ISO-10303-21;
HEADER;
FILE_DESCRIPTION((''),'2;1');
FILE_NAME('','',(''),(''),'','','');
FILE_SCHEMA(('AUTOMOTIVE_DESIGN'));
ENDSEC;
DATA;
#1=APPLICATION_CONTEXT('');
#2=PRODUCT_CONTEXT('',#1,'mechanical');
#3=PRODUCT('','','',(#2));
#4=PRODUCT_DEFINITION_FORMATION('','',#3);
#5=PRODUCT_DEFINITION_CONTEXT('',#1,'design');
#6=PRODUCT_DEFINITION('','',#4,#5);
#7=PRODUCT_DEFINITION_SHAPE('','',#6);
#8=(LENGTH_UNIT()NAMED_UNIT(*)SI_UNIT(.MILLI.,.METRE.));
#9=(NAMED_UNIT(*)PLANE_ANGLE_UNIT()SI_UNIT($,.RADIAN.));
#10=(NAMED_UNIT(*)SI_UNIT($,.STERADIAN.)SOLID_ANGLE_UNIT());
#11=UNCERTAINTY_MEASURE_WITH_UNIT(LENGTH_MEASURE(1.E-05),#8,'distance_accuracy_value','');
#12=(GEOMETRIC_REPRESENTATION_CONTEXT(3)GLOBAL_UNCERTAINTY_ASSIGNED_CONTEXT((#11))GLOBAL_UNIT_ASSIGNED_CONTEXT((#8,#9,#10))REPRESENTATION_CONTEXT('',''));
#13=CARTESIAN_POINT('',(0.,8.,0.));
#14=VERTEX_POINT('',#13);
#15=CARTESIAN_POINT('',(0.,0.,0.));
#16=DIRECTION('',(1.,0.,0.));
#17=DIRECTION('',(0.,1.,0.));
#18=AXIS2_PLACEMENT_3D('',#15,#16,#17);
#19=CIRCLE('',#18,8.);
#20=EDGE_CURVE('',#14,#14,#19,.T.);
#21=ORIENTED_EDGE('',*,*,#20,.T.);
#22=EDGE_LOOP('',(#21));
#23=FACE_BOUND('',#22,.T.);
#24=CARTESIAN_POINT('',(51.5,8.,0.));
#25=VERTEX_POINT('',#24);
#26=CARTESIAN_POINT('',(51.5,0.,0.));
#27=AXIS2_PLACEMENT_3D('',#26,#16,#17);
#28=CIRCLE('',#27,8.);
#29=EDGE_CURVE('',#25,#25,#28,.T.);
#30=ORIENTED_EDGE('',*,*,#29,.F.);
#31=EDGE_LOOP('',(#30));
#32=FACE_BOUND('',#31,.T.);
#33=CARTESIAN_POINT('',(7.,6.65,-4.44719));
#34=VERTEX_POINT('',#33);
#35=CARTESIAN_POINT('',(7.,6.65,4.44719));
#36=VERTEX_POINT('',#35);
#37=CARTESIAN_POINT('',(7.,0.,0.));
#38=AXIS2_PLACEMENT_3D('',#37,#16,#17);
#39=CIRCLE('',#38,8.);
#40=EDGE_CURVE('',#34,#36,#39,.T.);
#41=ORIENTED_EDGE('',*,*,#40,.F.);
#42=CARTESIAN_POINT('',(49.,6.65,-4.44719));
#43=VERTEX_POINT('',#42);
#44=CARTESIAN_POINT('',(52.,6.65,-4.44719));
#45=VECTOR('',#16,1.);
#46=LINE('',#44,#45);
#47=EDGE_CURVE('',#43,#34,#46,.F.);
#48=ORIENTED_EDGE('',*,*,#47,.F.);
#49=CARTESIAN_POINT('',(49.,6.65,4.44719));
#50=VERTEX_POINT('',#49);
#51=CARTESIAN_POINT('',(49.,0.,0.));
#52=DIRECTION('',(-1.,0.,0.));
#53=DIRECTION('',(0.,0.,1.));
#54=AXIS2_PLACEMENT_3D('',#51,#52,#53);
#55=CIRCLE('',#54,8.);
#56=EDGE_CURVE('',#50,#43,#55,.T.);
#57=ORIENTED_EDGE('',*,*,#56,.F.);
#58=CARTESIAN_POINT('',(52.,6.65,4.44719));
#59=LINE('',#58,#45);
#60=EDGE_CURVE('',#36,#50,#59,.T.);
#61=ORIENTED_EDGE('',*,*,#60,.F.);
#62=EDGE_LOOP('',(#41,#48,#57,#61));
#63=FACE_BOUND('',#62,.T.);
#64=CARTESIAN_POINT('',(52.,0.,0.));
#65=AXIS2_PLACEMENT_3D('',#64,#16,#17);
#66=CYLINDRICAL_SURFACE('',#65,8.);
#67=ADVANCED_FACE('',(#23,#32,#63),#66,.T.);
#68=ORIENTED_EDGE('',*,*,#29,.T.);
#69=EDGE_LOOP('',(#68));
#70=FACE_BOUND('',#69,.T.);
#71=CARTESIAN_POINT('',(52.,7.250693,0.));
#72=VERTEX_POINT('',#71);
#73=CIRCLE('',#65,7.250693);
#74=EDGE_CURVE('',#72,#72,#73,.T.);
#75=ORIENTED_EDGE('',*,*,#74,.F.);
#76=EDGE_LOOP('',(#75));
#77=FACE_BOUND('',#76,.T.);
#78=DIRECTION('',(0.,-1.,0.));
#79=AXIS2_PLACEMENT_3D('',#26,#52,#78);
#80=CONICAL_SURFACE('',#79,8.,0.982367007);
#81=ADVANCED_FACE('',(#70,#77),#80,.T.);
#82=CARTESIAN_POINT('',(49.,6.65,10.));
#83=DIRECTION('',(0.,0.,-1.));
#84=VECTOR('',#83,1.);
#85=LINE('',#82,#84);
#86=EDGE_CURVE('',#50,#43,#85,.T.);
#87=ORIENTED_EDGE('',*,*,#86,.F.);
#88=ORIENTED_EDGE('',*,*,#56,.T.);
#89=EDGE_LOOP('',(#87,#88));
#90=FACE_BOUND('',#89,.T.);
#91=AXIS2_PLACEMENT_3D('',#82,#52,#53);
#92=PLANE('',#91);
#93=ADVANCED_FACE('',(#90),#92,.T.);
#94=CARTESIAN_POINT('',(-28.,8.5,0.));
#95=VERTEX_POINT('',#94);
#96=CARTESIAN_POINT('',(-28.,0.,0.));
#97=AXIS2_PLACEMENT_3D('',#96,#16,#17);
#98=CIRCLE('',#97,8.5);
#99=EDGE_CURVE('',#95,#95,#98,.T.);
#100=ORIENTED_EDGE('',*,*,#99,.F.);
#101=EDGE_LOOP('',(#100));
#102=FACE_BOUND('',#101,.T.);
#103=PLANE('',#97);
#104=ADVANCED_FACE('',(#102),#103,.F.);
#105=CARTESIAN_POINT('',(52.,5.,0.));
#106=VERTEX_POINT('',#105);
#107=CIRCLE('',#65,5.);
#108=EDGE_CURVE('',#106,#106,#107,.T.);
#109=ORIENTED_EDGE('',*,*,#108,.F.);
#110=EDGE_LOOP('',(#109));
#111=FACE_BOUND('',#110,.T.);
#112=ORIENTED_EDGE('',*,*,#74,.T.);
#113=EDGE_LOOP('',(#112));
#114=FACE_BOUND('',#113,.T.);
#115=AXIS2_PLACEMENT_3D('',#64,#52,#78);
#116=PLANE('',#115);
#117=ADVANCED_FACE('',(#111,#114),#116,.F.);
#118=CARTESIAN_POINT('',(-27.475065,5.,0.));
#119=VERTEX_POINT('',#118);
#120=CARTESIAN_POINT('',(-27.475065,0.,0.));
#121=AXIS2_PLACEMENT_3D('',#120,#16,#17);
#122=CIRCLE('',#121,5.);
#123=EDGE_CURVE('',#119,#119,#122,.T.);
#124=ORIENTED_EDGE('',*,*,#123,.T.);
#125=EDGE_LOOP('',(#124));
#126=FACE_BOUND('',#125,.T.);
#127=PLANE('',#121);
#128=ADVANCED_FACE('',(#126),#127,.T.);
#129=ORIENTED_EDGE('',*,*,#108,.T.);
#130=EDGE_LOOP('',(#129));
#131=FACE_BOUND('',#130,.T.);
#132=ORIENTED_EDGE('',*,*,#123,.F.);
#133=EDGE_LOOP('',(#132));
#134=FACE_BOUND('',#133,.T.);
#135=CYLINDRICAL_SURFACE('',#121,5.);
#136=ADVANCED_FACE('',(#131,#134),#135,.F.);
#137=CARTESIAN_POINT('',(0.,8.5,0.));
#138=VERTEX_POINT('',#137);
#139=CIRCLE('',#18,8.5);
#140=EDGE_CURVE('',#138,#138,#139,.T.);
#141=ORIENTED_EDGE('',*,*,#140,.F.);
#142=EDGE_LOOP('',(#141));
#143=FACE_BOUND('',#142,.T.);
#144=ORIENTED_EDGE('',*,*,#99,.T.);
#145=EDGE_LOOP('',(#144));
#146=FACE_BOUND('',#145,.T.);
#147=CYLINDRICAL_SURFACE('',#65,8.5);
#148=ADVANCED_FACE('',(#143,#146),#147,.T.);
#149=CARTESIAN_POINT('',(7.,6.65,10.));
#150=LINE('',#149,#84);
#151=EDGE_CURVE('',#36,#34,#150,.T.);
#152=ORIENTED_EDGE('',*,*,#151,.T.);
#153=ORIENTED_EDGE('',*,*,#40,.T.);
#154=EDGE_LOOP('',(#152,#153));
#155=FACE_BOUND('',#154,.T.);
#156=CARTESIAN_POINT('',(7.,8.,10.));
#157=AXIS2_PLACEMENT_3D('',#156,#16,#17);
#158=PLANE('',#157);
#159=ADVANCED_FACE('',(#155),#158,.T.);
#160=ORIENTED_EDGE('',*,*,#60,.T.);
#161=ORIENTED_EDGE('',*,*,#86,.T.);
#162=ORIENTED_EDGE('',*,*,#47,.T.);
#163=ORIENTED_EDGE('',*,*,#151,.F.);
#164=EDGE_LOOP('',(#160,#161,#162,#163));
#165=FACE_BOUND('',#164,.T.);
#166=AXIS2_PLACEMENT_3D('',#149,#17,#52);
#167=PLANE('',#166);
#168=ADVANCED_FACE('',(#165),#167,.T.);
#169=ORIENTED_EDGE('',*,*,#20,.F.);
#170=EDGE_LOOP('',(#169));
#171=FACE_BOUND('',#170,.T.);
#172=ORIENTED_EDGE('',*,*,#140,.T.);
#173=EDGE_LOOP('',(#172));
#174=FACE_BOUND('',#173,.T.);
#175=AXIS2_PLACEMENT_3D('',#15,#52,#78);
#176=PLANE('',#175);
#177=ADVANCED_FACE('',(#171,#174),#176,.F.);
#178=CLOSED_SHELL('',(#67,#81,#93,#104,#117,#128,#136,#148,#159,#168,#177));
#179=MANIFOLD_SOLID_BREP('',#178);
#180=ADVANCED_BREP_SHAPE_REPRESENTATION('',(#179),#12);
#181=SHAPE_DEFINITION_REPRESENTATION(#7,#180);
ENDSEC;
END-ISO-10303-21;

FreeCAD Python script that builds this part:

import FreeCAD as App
import Part
import Sketcher

doc = App.newDocument("Part")
params = doc.addObject("Spreadsheet::Sheet", "Params")
for row, (alias, value) in enumerate([
    ("sketch1_width", "28 mm"),
    ("sketch1_width2", "80 mm"),
    ("sketch1_width3", "51.5 mm"),
    ("sketch1_height", "0.5 mm"),
    ("sketch1_height2", "8.5 mm"),
    ("revolution_angle", "360 deg"),
    ("sketch2_width", "42 mm"),
    ("sketch2_height", "1.35 mm"),
    ("sketch3_diameter", "10 mm"),
    ("pocket2_length", "79.475065 mm"),
], start=1):
    params.set(f"A{row}", alias)
    params.set(f"B{row}", "=" + value)
    params.setAlias(f"B{row}", alias)

body = doc.addObject("PartDesign::Body", "Body")

sketch1 = doc.addObject("Sketcher::SketchObject", "Sketch")
body.addObject(sketch1)
sketch1.AttachmentSupport = (doc.XY_Plane, [""])
sketch1.MapMode = "FlatFace"
sketch1.addGeometry(Part.LineSegment(App.Vector(51.5, 8, 0), App.Vector(0, 8, 0)), False)
sketch1.addGeometry(Part.LineSegment(App.Vector(0, 8, 0), App.Vector(0, 8.5, 0)), False)
sketch1.addGeometry(Part.LineSegment(App.Vector(0, 8.5, 0), App.Vector(-28, 8.5, 0)), False)
sketch1.addGeometry(Part.LineSegment(App.Vector(-28, 8.5, 0), App.Vector(-28, 0, 0)), False)
sketch1.addGeometry(Part.LineSegment(App.Vector(-28, 0, 0), App.Vector(52, 0, 0)), False)
sketch1.addGeometry(Part.LineSegment(App.Vector(52, 0, 0), App.Vector(52, 7.250693, 0)), False)
sketch1.addGeometry(Part.LineSegment(App.Vector(52, 7.250693, 0), App.Vector(51.5, 8, 0)), False)
sketch1.addConstraint(Sketcher.Constraint("Coincident", 0, 2, 1, 1))
sketch1.addConstraint(Sketcher.Constraint("Coincident", 1, 2, 2, 1))
sketch1.addConstraint(Sketcher.Constraint("Coincident", 2, 2, 3, 1))
sketch1.addConstraint(Sketcher.Constraint("Coincident", 3, 2, 4, 1))
sketch1.addConstraint(Sketcher.Constraint("Coincident", 4, 2, 5, 1))
sketch1.addConstraint(Sketcher.Constraint("Coincident", 5, 2, 6, 1))
sketch1.addConstraint(Sketcher.Constraint("Coincident", 6, 2, 0, 1))
sketch1.addConstraint(Sketcher.Constraint("Horizontal", 0))
sketch1.addConstraint(Sketcher.Constraint("Vertical", 1))
sketch1.addConstraint(Sketcher.Constraint("Horizontal", 2))
sketch1.addConstraint(Sketcher.Constraint("Vertical", 3))
sketch1.addConstraint(Sketcher.Constraint("Horizontal", 4))
sketch1.addConstraint(Sketcher.Constraint("Vertical", 5))
sketch1.addConstraint(Sketcher.Constraint("PointOnObject", 0, 2, -2))
sketch1.addConstraint(Sketcher.Constraint("PointOnObject", 3, 2, -1))
sketch1.addConstraint(Sketcher.Constraint("DistanceX", 2, 2, 2, 1, 28.0))
sketch1.addConstraint(Sketcher.Constraint("DistanceX", 4, 1, 4, 2, 80.0))
sketch1.addConstraint(Sketcher.Constraint("DistanceX", 0, 2, 0, 1, 51.5))
sketch1.addConstraint(Sketcher.Constraint("DistanceY", 1, 1, 1, 2, 0.5))
sketch1.addConstraint(Sketcher.Constraint("DistanceY", 3, 2, 3, 1, 8.5))
sketch1.addConstraint(Sketcher.Constraint("Distance", 6, 0.900811))
sketch1.setExpression("Constraints[15]", "Params.sketch1_width")
sketch1.setExpression("Constraints[16]", "Params.sketch1_width2")
sketch1.setExpression("Constraints[17]", "Params.sketch1_width3")
sketch1.setExpression("Constraints[18]", "Params.sketch1_height")
sketch1.setExpression("Constraints[19]", "Params.sketch1_height2")
revolution = doc.addObject("PartDesign::Revolution", "Revolution")
body.addObject(revolution)
revolution.Profile = sketch1
revolution.ReferenceAxis = (sketch1, ["H_Axis"])
revolution.setExpression("Angle", "Params.revolution_angle")

sketch2 = doc.addObject("Sketcher::SketchObject", "Sketch001")
body.addObject(sketch2)
sketch2.AttachmentSupport = (doc.XY_Plane, [""])
sketch2.MapMode = "FlatFace"
sketch2.addGeometry(Part.LineSegment(App.Vector(7, 8, 0), App.Vector(7, 6.65, 0)), False)
sketch2.addGeometry(Part.LineSegment(App.Vector(7, 6.65, 0), App.Vector(49, 6.65, 0)), False)
sketch2.addGeometry(Part.LineSegment(App.Vector(49, 6.65, 0), App.Vector(49, 8, 0)), False)
sketch2.addGeometry(Part.LineSegment(App.Vector(49, 8, 0), App.Vector(7, 8, 0)), False)
sketch2.addConstraint(Sketcher.Constraint("Coincident", 0, 2, 1, 1))
sketch2.addConstraint(Sketcher.Constraint("Coincident", 1, 2, 2, 1))
sketch2.addConstraint(Sketcher.Constraint("Coincident", 2, 2, 3, 1))
sketch2.addConstraint(Sketcher.Constraint("Coincident", 3, 2, 0, 1))
sketch2.addConstraint(Sketcher.Constraint("Vertical", 0))
sketch2.addConstraint(Sketcher.Constraint("Horizontal", 1))
sketch2.addConstraint(Sketcher.Constraint("Vertical", 2))
sketch2.addConstraint(Sketcher.Constraint("Horizontal", 3))
sketch2.addConstraint(Sketcher.Constraint("DistanceX", 1, 1, 1, 2, 42.0))
sketch2.addConstraint(Sketcher.Constraint("DistanceX", -1, 1, 0, 2, 7.0))
sketch2.addConstraint(Sketcher.Constraint("DistanceY", -1, 1, 2, 2, 8.0))
sketch2.addConstraint(Sketcher.Constraint("DistanceY", 0, 2, 0, 1, 1.35))
sketch2.setExpression("Constraints[8]", "Params.sketch2_width")
sketch2.setExpression("Constraints[11]", "Params.sketch2_height")
pocket1 = doc.addObject("PartDesign::Pocket", "Pocket")
body.addObject(pocket1)
pocket1.Profile = sketch2
pocket1.Type = "ThroughAll"
pocket1.Midplane = True

sketch3 = doc.addObject("Sketcher::SketchObject", "Sketch002")
body.addObject(sketch3)
sketch3.AttachmentSupport = (doc.YZ_Plane, [""])
sketch3.MapMode = "FlatFace"
sketch3.AttachmentOffset = App.Placement(App.Vector(0, 0, 52), App.Rotation())
sketch3.addGeometry(Part.Circle(App.Vector(0, 0, 0), App.Vector(0, 0, 1), 5), False)
sketch3.addConstraint(Sketcher.Constraint("Coincident", 0, 3, -1, 1))
sketch3.addConstraint(Sketcher.Constraint("Diameter", 0, 10.0))
sketch3.setExpression("Constraints[1]", "Params.sketch3_diameter")
pocket2 = doc.addObject("PartDesign::Pocket", "Pocket001")
body.addObject(pocket2)
pocket2.Profile = sketch3
pocket2.setExpression("Length", "Params.pocket2_length")

doc.recompute()
